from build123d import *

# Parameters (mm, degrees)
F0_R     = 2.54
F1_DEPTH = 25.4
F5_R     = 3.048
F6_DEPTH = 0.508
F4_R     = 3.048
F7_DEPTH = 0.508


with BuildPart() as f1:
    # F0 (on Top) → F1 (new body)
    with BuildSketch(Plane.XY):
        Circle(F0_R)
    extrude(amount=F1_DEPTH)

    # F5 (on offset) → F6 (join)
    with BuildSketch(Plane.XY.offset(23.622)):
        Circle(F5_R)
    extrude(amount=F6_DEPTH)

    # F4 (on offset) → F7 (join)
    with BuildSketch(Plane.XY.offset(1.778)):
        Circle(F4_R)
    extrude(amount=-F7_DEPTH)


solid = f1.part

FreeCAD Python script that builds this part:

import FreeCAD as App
import Part
import Sketcher
Q = App.Units.Quantity

doc = App.newDocument("Part")
body = doc.addObject("PartDesign::Body", "Body")

# Sketch on XY plane
sketch1 = body.newObject("Sketcher::SketchObject", "Sketch")
sketch1.AttachmentSupport = (doc.getObject("XY_Plane"), [""])
sketch1.MapMode = "FlatFace"
sketch1.addGeometry(Part.Circle(App.Vector(0, 0, 0), App.Vector(0, 0, 1), 2.54), False)
sketch1.addConstraint([
    Sketcher.Constraint("Coincident", 0, 3, -1, 1),
    Sketcher.Constraint("Diameter", 0, Q("0.2 in")),
])
pad1 = body.newObject("PartDesign::Pad", "Pad")
pad1.Profile = sketch1
pad1.Length = Q("1 in")

# Sketch on XY plane
sketch2 = body.newObject("Sketcher::SketchObject", "Sketch001")
sketch2.AttachmentSupport = (doc.getObject("XY_Plane"), [""])
sketch2.MapMode = "FlatFace"
sketch2.AttachmentOffset = App.Placement(App.Vector(0, 0, 0.93 * 25.4), App.Rotation())
sketch2.addGeometry(Part.Circle(App.Vector(0, 0, 0), App.Vector(0, 0, 1), 3.048), False)
sketch2.addConstraint([
    Sketcher.Constraint("Coincident", 0, 3, -1, 1),
    Sketcher.Constraint("Diameter", 0, Q("0.24 in")),
])
pad2 = body.newObject("PartDesign::Pad", "Pad001")
pad2.Profile = sketch2
pad2.Length = Q("0.02 in")

# Sketch on XY plane
sketch3 = body.newObject("Sketcher::SketchObject", "Sketch002")
sketch3.AttachmentSupport = (doc.getObject("XY_Plane"), [""])
sketch3.MapMode = "FlatFace"
sketch3.AttachmentOffset = App.Placement(App.Vector(0, 0, 0.07 * 25.4), App.Rotation())
sketch3.addGeometry(Part.Circle(App.Vector(0, 0, 0), App.Vector(0, 0, 1), 3.048), False)
sketch3.addConstraint([
    Sketcher.Constraint("Coincident", 0, 3, -1, 1),
    Sketcher.Constraint("Diameter", 0, Q("0.24 in")),
])
pad3 = body.newObject("PartDesign::Pad", "Pad002")
pad3.Profile = sketch3
pad3.Length = Q("0.02 in")
pad3.Reversed = True

doc.recompute()
